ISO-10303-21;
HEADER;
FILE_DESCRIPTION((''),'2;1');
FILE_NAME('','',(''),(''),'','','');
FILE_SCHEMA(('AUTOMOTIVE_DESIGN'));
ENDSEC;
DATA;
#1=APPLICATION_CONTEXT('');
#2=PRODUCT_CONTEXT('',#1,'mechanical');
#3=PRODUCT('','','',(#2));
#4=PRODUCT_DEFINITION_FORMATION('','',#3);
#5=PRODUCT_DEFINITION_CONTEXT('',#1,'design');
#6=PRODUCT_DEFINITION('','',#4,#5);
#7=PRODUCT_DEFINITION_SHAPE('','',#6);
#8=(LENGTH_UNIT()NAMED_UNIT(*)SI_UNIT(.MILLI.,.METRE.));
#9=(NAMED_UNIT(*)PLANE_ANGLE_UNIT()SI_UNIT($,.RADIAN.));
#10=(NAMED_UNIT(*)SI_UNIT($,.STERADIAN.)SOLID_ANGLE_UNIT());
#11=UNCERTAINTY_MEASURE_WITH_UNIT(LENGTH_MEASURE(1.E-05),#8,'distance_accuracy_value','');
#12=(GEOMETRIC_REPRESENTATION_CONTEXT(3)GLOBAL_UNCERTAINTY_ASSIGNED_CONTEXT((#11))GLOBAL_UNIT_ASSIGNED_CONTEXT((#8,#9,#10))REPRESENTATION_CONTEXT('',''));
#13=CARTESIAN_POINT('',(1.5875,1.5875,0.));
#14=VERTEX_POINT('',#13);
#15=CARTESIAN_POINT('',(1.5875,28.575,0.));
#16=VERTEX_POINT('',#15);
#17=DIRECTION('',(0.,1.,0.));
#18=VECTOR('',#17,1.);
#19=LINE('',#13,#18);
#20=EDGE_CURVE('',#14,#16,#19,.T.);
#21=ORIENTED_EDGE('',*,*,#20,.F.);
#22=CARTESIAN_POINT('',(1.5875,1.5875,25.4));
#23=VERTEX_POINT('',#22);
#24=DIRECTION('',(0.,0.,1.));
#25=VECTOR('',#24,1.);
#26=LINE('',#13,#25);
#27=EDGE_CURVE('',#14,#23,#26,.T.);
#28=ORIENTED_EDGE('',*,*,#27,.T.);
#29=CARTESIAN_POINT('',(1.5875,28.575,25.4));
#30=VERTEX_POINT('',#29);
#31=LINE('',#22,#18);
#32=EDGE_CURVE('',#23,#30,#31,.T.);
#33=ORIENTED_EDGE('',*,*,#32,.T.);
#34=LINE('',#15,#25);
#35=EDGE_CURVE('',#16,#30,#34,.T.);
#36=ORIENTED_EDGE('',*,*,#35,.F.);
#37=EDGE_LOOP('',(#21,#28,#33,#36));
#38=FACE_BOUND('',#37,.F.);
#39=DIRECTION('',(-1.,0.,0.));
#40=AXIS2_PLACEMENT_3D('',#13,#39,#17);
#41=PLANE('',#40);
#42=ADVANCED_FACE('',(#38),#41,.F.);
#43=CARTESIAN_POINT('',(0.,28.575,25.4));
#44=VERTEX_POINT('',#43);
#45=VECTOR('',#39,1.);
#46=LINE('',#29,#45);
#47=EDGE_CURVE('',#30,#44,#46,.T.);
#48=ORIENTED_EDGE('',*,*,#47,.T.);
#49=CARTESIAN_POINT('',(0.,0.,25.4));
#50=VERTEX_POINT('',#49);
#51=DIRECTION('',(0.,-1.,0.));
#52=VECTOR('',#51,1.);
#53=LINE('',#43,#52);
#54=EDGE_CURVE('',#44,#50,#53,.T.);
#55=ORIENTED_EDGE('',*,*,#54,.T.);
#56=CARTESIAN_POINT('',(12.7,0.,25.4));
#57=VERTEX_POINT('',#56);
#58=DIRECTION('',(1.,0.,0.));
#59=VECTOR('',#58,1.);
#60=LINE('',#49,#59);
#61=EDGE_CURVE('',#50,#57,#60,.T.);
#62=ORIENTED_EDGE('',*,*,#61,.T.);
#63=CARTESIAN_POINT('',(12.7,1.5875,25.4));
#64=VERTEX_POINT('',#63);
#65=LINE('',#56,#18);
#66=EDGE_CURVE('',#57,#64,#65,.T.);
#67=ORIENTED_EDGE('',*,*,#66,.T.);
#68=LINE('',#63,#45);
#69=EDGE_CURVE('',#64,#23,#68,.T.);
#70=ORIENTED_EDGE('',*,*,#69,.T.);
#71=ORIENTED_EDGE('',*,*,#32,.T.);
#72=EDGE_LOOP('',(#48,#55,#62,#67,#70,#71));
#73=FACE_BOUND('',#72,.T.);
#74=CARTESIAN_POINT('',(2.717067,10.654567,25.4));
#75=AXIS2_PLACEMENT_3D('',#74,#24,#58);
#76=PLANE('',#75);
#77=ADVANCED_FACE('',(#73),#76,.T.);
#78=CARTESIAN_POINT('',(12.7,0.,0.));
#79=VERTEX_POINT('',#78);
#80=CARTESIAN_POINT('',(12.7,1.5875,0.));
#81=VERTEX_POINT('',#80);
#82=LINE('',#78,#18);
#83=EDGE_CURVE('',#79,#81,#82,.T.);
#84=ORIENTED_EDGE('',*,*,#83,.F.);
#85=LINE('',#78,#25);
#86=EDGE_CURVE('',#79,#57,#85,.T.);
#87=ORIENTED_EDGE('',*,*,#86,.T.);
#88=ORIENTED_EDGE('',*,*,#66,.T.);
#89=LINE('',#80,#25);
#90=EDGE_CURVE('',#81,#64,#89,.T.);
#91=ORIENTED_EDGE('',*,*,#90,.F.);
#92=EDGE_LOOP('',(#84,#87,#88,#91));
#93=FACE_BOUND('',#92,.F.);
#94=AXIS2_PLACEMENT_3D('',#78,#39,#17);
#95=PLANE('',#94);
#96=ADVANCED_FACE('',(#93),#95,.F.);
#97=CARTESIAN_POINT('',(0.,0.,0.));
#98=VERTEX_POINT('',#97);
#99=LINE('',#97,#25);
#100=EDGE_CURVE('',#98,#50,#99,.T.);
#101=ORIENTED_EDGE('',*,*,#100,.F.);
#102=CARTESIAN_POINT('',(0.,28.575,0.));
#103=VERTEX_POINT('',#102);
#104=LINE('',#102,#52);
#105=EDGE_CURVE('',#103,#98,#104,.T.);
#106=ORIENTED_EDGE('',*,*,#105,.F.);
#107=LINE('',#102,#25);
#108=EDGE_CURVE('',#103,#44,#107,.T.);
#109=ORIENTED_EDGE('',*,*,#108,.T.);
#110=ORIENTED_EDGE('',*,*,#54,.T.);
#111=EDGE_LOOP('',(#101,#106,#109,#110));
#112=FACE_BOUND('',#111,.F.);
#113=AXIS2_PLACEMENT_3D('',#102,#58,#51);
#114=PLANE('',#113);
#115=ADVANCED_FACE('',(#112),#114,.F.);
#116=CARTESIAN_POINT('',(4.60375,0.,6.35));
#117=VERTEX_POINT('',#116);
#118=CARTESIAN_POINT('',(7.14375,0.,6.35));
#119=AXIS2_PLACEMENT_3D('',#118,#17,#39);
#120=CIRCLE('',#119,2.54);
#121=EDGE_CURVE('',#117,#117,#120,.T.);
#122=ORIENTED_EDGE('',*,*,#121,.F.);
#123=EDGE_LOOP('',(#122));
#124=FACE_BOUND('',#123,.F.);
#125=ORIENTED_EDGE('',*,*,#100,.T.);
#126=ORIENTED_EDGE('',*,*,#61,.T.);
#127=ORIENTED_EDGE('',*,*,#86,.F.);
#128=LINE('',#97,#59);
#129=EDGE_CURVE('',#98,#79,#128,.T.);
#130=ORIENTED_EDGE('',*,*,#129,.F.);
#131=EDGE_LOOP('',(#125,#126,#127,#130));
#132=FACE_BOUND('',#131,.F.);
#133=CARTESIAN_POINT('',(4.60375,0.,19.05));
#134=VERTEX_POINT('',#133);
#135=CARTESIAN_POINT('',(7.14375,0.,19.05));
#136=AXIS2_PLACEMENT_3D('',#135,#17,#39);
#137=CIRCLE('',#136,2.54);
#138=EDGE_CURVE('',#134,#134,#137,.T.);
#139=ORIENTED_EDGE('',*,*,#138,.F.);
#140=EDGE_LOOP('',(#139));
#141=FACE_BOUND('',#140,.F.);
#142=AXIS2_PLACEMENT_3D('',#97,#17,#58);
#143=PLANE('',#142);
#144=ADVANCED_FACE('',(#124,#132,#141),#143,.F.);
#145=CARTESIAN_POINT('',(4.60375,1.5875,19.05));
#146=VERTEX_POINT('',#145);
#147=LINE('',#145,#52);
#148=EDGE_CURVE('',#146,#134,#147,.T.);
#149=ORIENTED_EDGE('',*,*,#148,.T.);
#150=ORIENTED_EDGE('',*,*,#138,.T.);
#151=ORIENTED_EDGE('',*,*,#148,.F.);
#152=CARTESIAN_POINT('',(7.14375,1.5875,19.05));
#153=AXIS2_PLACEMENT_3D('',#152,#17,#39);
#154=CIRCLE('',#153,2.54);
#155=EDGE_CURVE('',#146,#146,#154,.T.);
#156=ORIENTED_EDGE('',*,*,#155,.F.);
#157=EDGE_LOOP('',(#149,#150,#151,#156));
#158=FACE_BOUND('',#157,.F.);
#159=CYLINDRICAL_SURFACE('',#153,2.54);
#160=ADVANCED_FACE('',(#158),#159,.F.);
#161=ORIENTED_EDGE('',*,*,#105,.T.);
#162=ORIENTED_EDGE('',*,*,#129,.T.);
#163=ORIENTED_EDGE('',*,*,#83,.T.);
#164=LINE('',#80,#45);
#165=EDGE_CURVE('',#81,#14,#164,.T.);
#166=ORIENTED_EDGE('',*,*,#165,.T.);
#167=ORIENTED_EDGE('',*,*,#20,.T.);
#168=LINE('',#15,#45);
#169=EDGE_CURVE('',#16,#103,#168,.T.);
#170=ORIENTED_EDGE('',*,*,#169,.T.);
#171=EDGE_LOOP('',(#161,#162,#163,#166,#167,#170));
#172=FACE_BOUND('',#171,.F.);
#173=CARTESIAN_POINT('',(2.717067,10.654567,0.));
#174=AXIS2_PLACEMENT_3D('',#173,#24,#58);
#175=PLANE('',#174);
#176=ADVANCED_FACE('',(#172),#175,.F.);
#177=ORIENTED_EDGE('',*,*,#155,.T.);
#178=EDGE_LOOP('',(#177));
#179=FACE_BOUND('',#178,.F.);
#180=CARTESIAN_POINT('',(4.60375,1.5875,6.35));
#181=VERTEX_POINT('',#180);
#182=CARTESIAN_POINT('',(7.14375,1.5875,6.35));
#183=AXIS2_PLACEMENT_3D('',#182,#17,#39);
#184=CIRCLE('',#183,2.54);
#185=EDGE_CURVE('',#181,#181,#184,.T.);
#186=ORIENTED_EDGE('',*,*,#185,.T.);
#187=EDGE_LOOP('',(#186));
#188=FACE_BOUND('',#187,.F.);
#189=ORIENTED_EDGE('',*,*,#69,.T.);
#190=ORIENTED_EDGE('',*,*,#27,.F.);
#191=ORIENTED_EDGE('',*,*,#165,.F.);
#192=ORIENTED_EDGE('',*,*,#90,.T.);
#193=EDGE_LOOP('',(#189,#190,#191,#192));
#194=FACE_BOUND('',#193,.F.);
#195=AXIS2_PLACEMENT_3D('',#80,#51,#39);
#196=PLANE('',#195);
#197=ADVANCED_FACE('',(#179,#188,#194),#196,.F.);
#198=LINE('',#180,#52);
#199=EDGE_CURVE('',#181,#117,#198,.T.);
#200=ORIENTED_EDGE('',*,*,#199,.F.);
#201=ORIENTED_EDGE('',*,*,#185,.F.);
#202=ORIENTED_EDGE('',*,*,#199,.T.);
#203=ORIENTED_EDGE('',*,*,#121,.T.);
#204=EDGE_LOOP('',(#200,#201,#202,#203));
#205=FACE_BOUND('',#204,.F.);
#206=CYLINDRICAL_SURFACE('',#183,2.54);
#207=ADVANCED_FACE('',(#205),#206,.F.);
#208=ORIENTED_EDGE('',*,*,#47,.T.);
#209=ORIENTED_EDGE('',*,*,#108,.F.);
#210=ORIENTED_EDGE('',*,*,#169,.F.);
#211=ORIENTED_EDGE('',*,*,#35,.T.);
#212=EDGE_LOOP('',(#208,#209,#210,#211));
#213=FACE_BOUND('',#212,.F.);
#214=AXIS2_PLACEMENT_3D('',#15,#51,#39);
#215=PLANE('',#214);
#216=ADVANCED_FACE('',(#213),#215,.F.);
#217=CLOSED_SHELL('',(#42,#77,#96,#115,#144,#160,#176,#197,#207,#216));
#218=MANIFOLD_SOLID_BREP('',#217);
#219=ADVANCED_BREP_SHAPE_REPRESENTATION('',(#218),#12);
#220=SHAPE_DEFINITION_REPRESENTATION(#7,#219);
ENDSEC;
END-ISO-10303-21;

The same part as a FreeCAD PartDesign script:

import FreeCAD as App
import Part
import Sketcher

V = App.Vector
Q = App.Units.Quantity


def add_polygon(sketch, points):
    """Adds a closed chain of lines whose ends are joined by coincident constraints."""
    first, n = sketch.GeometryCount, len(points)
    for a, b in zip(points, points[1:] + points[:1]):
        sketch.addGeometry(Part.LineSegment(App.Vector(*a, 0), App.Vector(*b, 0)), False)
    for i in range(n):
        sketch.addConstraint(Sketcher.Constraint("Coincident", first + i, 2, first + (i + 1) % n, 1))

doc = App.newDocument("Part")
body = doc.addObject("PartDesign::Body", "Body")

sketch1 = body.newObject("Sketcher::SketchObject", "Sketch")
sketch1.AttachmentSupport = (doc.getObject("XY_Plane"), [""])
sketch1.MapMode = "FlatFace"
add_polygon(sketch1, [(0, 28.6), (0, 0), (12.7, 0), (12.7, 1.6), (1.6, 1.6), (1.6, 28.6)])
sketch1.addConstraint(Sketcher.Constraint("Vertical", 0))
sketch1.addConstraint(Sketcher.Constraint("Horizontal", 1))
sketch1.addConstraint(Sketcher.Constraint("Vertical", 2))
sketch1.addConstraint(Sketcher.Constraint("Horizontal", 3))
sketch1.addConstraint(Sketcher.Constraint("Vertical", 4))
sketch1.addConstraint(Sketcher.Constraint("Horizontal", 5))
sketch1.addConstraint(Sketcher.Constraint("Coincident", 0, 2, -1, 1))
sketch1.addConstraint(Sketcher.Constraint("Equal", 5, 2))
sketch1.addConstraint(Sketcher.Constraint("DistanceX", 1, 1, 1, 2, Q("0.5 in")))
sketch1.addConstraint(Sketcher.Constraint("DistanceX", 3, 2, 3, 1, Q("0.4375 in")))
sketch1.addConstraint(Sketcher.Constraint("DistanceY", 0, 2, 0, 1, Q("1.125 in")))
pad1 = body.newObject("PartDesign::Pad", "Pad")
pad1.Profile = sketch1
pad1.Length = Q("1 in")

sketch2 = body.newObject("Sketcher::SketchObject", "Sketch001")
sketch2.AttachmentSupport = (doc.getObject("XZ_Plane"), [""])
sketch2.MapMode = "FlatFace"
sketch2.AttachmentOffset = App.Placement(V(0, 0, -0.0625 * 25.4), App.Rotation())
sketch2.addGeometry(Part.Circle(V(7.1, 19.1, 0), V(0, 0, 1), 2.5), False)
sketch2.addGeometry(Part.Circle(V(7.1, 6.3, 0), V(0, 0, 1), 2.5), False)
sketch2.addConstraint(Sketcher.Constraint("Equal", 0, 1))
sketch2.addConstraint(Sketcher.Constraint("Vertical", 0, 3, 1, 3))
sketch2.addConstraint(Sketcher.Constraint("Diameter", 0, Q("0.2 in")))
sketch2.addConstraint(Sketcher.Constraint("DistanceY", 1, 3, 0, 3, Q("0.5 in")))
sketch2.addConstraint(Sketcher.Constraint("DistanceY", -1, 1, 0, 3, Q("0.75 in")))
sketch2.addConstraint(Sketcher.Constraint("DistanceX", -1, 1, 0, 3, Q("0.28125 in")))
pocket1 = body.newObject("PartDesign::Pocket", "Pocket")
pocket1.Profile = sketch2
pocket1.Type = "ThroughAll"
pocket1.Reversed = True

doc.recompute()
